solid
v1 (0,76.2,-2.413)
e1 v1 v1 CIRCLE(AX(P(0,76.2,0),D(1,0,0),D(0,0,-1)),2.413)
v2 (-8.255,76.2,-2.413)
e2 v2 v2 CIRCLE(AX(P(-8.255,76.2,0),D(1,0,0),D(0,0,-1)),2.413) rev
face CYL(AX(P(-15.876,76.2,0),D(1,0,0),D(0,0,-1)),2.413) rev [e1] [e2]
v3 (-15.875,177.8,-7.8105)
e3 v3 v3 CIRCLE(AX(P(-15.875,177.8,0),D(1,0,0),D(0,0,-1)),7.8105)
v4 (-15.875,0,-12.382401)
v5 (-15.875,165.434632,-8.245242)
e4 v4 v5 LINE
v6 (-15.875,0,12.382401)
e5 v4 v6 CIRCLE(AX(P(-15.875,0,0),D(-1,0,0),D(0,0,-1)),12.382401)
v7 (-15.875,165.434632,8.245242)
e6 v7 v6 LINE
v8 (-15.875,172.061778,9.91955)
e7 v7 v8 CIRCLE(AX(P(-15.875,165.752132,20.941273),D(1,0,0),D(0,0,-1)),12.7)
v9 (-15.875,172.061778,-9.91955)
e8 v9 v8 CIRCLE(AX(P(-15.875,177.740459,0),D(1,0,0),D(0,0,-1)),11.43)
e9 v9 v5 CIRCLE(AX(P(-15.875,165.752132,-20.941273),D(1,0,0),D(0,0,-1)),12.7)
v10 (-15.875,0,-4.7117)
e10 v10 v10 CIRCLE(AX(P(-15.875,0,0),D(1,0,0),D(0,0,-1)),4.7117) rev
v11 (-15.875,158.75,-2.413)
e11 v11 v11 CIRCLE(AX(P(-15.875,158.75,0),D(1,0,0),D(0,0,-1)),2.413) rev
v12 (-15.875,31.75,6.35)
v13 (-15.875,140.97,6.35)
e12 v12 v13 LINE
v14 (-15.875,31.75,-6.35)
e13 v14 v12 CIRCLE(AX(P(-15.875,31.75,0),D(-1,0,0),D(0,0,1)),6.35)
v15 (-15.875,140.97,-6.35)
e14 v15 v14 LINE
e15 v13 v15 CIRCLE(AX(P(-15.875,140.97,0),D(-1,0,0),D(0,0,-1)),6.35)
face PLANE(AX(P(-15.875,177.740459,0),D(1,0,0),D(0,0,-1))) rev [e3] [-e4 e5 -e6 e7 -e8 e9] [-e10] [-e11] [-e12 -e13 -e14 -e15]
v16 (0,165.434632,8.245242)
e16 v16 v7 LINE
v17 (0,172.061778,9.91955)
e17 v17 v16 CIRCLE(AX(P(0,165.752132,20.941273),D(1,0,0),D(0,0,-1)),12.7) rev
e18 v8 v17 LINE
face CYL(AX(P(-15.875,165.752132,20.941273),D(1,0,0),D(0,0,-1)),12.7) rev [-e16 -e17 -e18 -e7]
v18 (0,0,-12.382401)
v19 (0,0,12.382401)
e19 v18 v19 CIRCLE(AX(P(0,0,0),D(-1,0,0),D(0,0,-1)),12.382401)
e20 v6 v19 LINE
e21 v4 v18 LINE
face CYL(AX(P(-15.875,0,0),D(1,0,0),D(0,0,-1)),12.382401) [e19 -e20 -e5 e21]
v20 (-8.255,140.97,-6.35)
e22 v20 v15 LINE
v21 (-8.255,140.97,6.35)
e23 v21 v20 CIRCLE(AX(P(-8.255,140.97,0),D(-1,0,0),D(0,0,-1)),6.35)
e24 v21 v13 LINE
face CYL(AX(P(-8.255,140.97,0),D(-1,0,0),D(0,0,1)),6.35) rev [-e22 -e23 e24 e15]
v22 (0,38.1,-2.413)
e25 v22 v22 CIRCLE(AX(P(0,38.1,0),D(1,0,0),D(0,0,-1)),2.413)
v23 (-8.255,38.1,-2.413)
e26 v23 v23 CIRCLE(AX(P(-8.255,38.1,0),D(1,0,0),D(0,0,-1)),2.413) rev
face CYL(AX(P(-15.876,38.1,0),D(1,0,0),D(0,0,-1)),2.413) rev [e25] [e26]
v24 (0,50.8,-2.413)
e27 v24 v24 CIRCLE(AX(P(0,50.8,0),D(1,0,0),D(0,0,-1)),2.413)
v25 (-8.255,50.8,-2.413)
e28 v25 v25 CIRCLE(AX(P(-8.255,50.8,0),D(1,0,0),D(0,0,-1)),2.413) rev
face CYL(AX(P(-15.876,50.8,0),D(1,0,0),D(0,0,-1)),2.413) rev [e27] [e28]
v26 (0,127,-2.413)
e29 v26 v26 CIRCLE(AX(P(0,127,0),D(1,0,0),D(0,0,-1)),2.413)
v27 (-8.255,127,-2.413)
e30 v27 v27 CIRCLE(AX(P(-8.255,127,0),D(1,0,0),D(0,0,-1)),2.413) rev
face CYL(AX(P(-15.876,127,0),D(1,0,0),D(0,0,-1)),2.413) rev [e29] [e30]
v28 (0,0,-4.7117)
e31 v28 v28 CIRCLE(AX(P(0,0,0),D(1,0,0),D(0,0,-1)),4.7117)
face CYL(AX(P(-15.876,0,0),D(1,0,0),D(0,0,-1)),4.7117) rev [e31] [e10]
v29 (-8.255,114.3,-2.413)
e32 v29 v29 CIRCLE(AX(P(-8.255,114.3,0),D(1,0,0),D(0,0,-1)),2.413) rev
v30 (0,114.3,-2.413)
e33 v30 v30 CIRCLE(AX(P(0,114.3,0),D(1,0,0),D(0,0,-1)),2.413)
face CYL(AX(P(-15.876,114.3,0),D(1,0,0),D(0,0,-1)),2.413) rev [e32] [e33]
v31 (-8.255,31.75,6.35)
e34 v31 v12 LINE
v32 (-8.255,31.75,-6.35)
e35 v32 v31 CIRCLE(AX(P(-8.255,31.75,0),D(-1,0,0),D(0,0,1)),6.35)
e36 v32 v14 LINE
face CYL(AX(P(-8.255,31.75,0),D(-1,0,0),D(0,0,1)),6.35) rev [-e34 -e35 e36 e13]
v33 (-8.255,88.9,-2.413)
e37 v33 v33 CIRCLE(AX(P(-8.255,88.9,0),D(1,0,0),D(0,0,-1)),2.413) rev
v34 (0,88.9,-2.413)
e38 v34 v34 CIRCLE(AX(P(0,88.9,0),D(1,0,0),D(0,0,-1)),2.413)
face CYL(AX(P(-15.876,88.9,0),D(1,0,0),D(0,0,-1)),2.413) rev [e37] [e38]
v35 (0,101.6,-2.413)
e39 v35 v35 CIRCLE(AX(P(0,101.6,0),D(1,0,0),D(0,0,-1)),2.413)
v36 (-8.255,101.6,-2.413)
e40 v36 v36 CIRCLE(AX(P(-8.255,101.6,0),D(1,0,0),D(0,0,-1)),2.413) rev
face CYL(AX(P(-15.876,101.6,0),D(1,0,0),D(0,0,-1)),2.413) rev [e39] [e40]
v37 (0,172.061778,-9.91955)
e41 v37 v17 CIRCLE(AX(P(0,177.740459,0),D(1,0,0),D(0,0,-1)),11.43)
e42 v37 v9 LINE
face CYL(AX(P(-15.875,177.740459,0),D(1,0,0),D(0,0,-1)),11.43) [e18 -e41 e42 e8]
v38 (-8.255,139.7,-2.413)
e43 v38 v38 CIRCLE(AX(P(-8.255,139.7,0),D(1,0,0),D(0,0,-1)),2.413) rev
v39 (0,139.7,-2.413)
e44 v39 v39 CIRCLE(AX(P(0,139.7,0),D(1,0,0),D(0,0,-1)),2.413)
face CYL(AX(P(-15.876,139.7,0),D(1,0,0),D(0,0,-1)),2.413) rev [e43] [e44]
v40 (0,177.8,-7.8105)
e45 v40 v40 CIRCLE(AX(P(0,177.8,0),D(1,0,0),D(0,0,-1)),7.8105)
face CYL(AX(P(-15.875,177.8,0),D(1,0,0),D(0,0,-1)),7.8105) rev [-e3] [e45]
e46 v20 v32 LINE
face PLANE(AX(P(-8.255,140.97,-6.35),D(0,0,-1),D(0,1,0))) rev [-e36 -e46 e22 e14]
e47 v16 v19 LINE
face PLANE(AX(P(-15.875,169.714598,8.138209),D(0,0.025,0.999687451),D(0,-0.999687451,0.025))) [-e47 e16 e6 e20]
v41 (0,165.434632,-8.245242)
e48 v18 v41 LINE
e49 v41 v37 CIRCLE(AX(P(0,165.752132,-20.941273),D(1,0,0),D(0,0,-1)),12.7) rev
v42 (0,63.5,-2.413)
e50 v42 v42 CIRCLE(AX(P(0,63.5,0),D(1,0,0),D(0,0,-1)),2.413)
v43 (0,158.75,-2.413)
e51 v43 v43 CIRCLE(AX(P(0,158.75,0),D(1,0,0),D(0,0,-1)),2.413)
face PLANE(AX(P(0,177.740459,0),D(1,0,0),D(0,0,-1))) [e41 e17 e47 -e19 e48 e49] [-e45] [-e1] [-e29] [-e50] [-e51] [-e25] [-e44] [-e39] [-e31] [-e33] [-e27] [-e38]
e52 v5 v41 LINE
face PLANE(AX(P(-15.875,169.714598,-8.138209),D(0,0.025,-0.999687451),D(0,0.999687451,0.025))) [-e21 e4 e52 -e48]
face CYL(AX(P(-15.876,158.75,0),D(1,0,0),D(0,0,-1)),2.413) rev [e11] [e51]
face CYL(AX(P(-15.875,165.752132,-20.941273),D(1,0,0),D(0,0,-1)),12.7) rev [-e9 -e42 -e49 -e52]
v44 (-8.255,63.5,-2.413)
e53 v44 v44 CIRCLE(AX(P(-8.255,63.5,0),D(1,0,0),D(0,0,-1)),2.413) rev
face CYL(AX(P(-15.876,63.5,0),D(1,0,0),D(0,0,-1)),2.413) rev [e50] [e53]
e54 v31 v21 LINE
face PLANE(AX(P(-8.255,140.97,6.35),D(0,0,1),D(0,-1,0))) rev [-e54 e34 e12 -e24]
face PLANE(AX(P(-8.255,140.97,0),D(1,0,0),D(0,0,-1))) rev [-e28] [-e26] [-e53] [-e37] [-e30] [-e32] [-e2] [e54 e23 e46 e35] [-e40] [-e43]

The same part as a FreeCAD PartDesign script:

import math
import FreeCAD as App
import Part
import Sketcher

V = App.Vector
Q = App.Units.Quantity


def edges_at(feature, points):
    """Names of the edges that pass closest to the given points."""
    edges = feature.Shape.Edges
    near = lambda p: min(range(len(edges)), key=lambda i: edges[i].distToShape(Part.Vertex(*p))[0])
    return sorted({f"Edge{near(p) + 1}" for p in points})

doc = App.newDocument("Part")
body = doc.addObject("PartDesign::Body", "Body")

sketch1 = body.newObject("Sketcher::SketchObject", "Sketch")
sketch1.AttachmentSupport = (doc.getObject("YZ_Plane"), [""])
sketch1.MapMode = "FlatFace"
sketch1.addGeometry(Part.LineSegment(V(-12.7, 12.7, 0), V(-12.7, -12.7, 0)), False)
sketch1.addGeometry(Part.LineSegment(V(-12.7, -12.7, 0), V(169.714598, -8.138209, 0)), False)
sketch1.addGeometry(Part.ArcOfCircle(Part.Circle(V(177.740459, 0, 0), V(0, 0, 1), 11.43), math.radians(-134.601774), math.radians(134.601774)), False)
sketch1.addGeometry(Part.LineSegment(V(169.714598, 8.138209, 0), V(-12.7, 12.7, 0)), False)
sketch1.addConstraint(Sketcher.Constraint("Coincident", 0, 2, 1, 1))
sketch1.addConstraint(Sketcher.Constraint("Coincident", 1, 2, 2, 1))
sketch1.addConstraint(Sketcher.Constraint("Coincident", 2, 2, 3, 1))
sketch1.addConstraint(Sketcher.Constraint("Coincident", 3, 2, 0, 1))
sketch1.addConstraint(Sketcher.Constraint("Vertical", 0))
sketch1.addConstraint(Sketcher.Constraint("Symmetric", 1, 2, 2, 2, -1))
sketch1.addConstraint(Sketcher.Constraint("Equal", 1, 3))
sketch1.addConstraint(Sketcher.Constraint("DistanceY", 0, 2, 0, 1, Q("1 in")))
sketch1.addConstraint(Sketcher.Constraint("Radius", 2, Q("0.45 in")))
sketch1.addConstraint(Sketcher.Constraint("DistanceX", 0, 2, -1, 1, Q("0.5 in")))
sketch1.addConstraint(Sketcher.Constraint("DistanceX", -1, 1, 1, 2, Q("169.714598 mm")))
sketch1.addConstraint(Sketcher.Constraint("Distance", 1, Q("182.471629 mm")))
pad1 = body.newObject("PartDesign::Pad", "Pad")
pad1.Profile = sketch1
pad1.Length = Q("0.625 in")
pad1.Reversed = True

sketch2 = body.newObject("Sketcher::SketchObject", "Sketch001")
sketch2.AttachmentSupport = (doc.getObject("YZ_Plane"), [""])
sketch2.MapMode = "FlatFace"
sketch2.addGeometry(Part.Circle(V(50.8, 0, 0), V(0, 0, 1), 2.413), False)
sketch2.addConstraint(Sketcher.Constraint("PointOnObject", 0, 3, -1))
sketch2.addConstraint(Sketcher.Constraint("Diameter", 0, Q("0.19 in")))
sketch2.addConstraint(Sketcher.Constraint("DistanceX", -1, 1, 0, 3, Q("2 in")))
pocket1 = body.newObject("PartDesign::Pocket", "Pocket")
pocket1.Profile = sketch2
pocket1.Type = "UpToFirst"

sketch3 = body.newObject("Sketcher::SketchObject", "Sketch002")
sketch3.AttachmentSupport = (doc.getObject("YZ_Plane"), [""])
sketch3.MapMode = "FlatFace"
sketch3.addGeometry(Part.Circle(V(63.5, 0, 0), V(0, 0, 1), 2.413), False)
sketch3.addConstraint(Sketcher.Constraint("PointOnObject", 0, 3, -1))
sketch3.addConstraint(Sketcher.Constraint("Diameter", 0, Q("0.19 in")))
sketch3.addConstraint(Sketcher.Constraint("DistanceX", -1, 1, 0, 3, Q("2.5 in")))
pocket2 = body.newObject("PartDesign::Pocket", "Pocket001")
pocket2.Profile = sketch3
pocket2.Type = "UpToFirst"

sketch4 = body.newObject("Sketcher::SketchObject", "Sketch003")
sketch4.AttachmentSupport = (doc.getObject("YZ_Plane"), [""])
sketch4.MapMode = "FlatFace"
sketch4.addGeometry(Part.Circle(V(76.2, 0, 0), V(0, 0, 1), 2.413), False)
sketch4.addConstraint(Sketcher.Constraint("PointOnObject", 0, 3, -1))
sketch4.addConstraint(Sketcher.Constraint("Diameter", 0, Q("0.19 in")))
sketch4.addConstraint(Sketcher.Constraint("DistanceX", -1, 1, 0, 3, Q("3 in")))
pocket3 = body.newObject("PartDesign::Pocket", "Pocket002")
pocket3.Profile = sketch4
pocket3.Type = "UpToFirst"

sketch5 = body.newObject("Sketcher::SketchObject", "Sketch004")
sketch5.AttachmentSupport = (doc.getObject("YZ_Plane"), [""])
sketch5.MapMode = "FlatFace"
sketch5.addGeometry(Part.Circle(V(88.9, 0, 0), V(0, 0, 1), 2.413), False)
sketch5.addConstraint(Sketcher.Constraint("PointOnObject", 0, 3, -1))
sketch5.addConstraint(Sketcher.Constraint("Diameter", 0, Q("0.19 in")))
sketch5.addConstraint(Sketcher.Constraint("DistanceX", -1, 1, 0, 3, Q("3.5 in")))
pocket4 = body.newObject("PartDesign::Pocket", "Pocket003")
pocket4.Profile = sketch5
pocket4.Type = "UpToFirst"

sketch6 = body.newObject("Sketcher::SketchObject", "Sketch005")
sketch6.AttachmentSupport = (doc.getObject("YZ_Plane"), [""])
sketch6.MapMode = "FlatFace"
sketch6.addGeometry(Part.Circle(V(101.6, 0, 0), V(0, 0, 1), 2.413), False)
sketch6.addConstraint(Sketcher.Constraint("PointOnObject", 0, 3, -1))
sketch6.addConstraint(Sketcher.Constraint("Diameter", 0, Q("0.19 in")))
sketch6.addConstraint(Sketcher.Constraint("DistanceX", -1, 1, 0, 3, Q("4 in")))
pocket5 = body.newObject("PartDesign::Pocket", "Pocket004")
pocket5.Profile = sketch6
pocket5.Type = "UpToFirst"

sketch7 = body.newObject("Sketcher::SketchObject", "Sketch006")
sketch7.AttachmentSupport = (doc.getObject("YZ_Plane"), [""])
sketch7.MapMode = "FlatFace"
sketch7.addGeometry(Part.Circle(V(114.3, 0, 0), V(0, 0, 1), 2.413), False)
sketch7.addConstraint(Sketcher.Constraint("PointOnObject", 0, 3, -1))
sketch7.addConstraint(Sketcher.Constraint("Diameter", 0, Q("0.19 in")))
sketch7.addConstraint(Sketcher.Constraint("DistanceX", -1, 1, 0, 3, Q("4.5 in")))
pocket6 = body.newObject("PartDesign::Pocket", "Pocket005")
pocket6.Profile = sketch7
pocket6.Type = "UpToFirst"

sketch8 = body.newObject("Sketcher::SketchObject", "Sketch007")
sketch8.AttachmentSupport = (doc.getObject("YZ_Plane"), [""])
sketch8.MapMode = "FlatFace"
sketch8.addGeometry(Part.Circle(V(127, 0, 0), V(0, 0, 1), 2.413), False)
sketch8.addConstraint(Sketcher.Constraint("PointOnObject", 0, 3, -1))
sketch8.addConstraint(Sketcher.Constraint("Diameter", 0, Q("0.19 in")))
sketch8.addConstraint(Sketcher.Constraint("DistanceX", -1, 1, 0, 3, Q("5 in")))
pocket7 = body.newObject("PartDesign::Pocket", "Pocket006")
pocket7.Profile = sketch8
pocket7.Type = "UpToFirst"

sketch9 = body.newObject("Sketcher::SketchObject", "Sketch008")
sketch9.AttachmentSupport = (doc.getObject("YZ_Plane"), [""])
sketch9.MapMode = "FlatFace"
sketch9.addGeometry(Part.Circle(V(139.7, 0, 0), V(0, 0, 1), 2.413), False)
sketch9.addConstraint(Sketcher.Constraint("PointOnObject", 0, 3, -1))
sketch9.addConstraint(Sketcher.Constraint("Diameter", 0, Q("0.19 in")))
sketch9.addConstraint(Sketcher.Constraint("DistanceX", -1, 1, 0, 3, Q("5.5 in")))
pocket8 = body.newObject("PartDesign::Pocket", "Pocket007")
pocket8.Profile = sketch9
pocket8.Type = "UpToFirst"

sketch10 = body.newObject("Sketcher::SketchObject", "Sketch009")
sketch10.AttachmentSupport = (doc.getObject("YZ_Plane"), [""])
sketch10.MapMode = "FlatFace"
sketch10.addGeometry(Part.Circle(V(158.75, 0, 0), V(0, 0, 1), 2.413), False)
sketch10.addConstraint(Sketcher.Constraint("PointOnObject", 0, 3, -1))
sketch10.addConstraint(Sketcher.Constraint("Diameter", 0, Q("0.19 in")))
sketch10.addConstraint(Sketcher.Constraint("DistanceX", -1, 1, 0, 3, Q("6.25 in")))
pocket9 = body.newObject("PartDesign::Pocket", "Pocket008")
pocket9.Profile = sketch10
pocket9.Type = "UpToFirst"

sketch11 = body.newObject("Sketcher::SketchObject", "Sketch010")
sketch11.AttachmentSupport = (doc.getObject("YZ_Plane"), [""])
sketch11.MapMode = "FlatFace"
sketch11.addGeometry(Part.Circle(V(38.1, 0, 0), V(0, 0, 1), 2.413), False)
sketch11.addConstraint(Sketcher.Constraint("PointOnObject", 0, 3, -1))
sketch11.addConstraint(Sketcher.Constraint("Diameter", 0, Q("0.19 in")))
sketch11.addConstraint(Sketcher.Constraint("DistanceX", -1, 1, 0, 3, Q("1.5 in")))
pocket10 = body.newObject("PartDesign::Pocket", "Pocket009")
pocket10.Profile = sketch11
pocket10.Type = "UpToFirst"

sketch12 = body.newObject("Sketcher::SketchObject", "Sketch011")
sketch12.AttachmentSupport = (doc.getObject("YZ_Plane"), [""])
sketch12.MapMode = "FlatFace"
sketch12.addGeometry(Part.Circle(V(0, 0, 0), V(0, 0, 1), 4.7117), False)
sketch12.addConstraint(Sketcher.Constraint("Coincident", 0, 3, -1, 1))
sketch12.addConstraint(Sketcher.Constraint("Diameter", 0, Q("0.371 in")))
pocket11 = body.newObject("PartDesign::Pocket", "Pocket010")
pocket11.Profile = sketch12
pocket11.Type = "UpToFirst"

sketch13 = body.newObject("Sketcher::SketchObject", "Sketch012")
sketch13.AttachmentSupport = (doc.getObject("YZ_Plane"), [""])
sketch13.MapMode = "FlatFace"
sketch13.addGeometry(Part.LineSegment(V(0, 12.382401, 0), V(-12.7, 12.7, 0)), False)
sketch13.addGeometry(Part.LineSegment(V(-12.7, 12.7, 0), V(-12.7, -12.7, 0)), False)
sketch13.addGeometry(Part.LineSegment(V(-12.7, -12.7, 0), V(0, -12.382401, 0)), False)
sketch13.addGeometry(Part.ArcOfCircle(Part.Circle(V(0, 0, 0), V(0, 0, 1), 12.382401), math.radians(90), math.radians(270)), False)
sketch13.addConstraint(Sketcher.Constraint("Coincident", 0, 2, 1, 1))
sketch13.addConstraint(Sketcher.Constraint("Coincident", 1, 2, 2, 1))
sketch13.addConstraint(Sketcher.Constraint("Coincident", 2, 2, 3, 2))
sketch13.addConstraint(Sketcher.Constraint("Coincident", 3, 1, 0, 1))
sketch13.addConstraint(Sketcher.Constraint("Vertical", 1))
sketch13.addConstraint(Sketcher.Constraint("Coincident", 3, 3, -1, 1))
sketch13.addConstraint(Sketcher.Constraint("PointOnObject", 2, 2, -2))
sketch13.addConstraint(Sketcher.Constraint("PointOnObject", 3, 1, -2))
sketch13.addConstraint(Sketcher.Constraint("Equal", 0, 2))
sketch13.addConstraint(Sketcher.Constraint("DistanceY", 1, 2, 1, 1, Q("1 in")))
sketch13.addConstraint(Sketcher.Constraint("DistanceX", 0, 2, -1, 1, Q("0.5 in")))
sketch13.addConstraint(Sketcher.Constraint("Radius", 3, Q("12.382401 mm")))
pocket12 = body.newObject("PartDesign::Pocket", "Pocket011")
pocket12.Profile = sketch13
pocket12.Type = "ThroughAll"

sketch14 = body.newObject("Sketcher::SketchObject", "Sketch013")
sketch14.AttachmentSupport = (doc.getObject("YZ_Plane"), [""])
sketch14.MapMode = "FlatFace"
sketch14.AttachmentOffset = App.Placement(V(0, 0, -0.625 * 25.4), App.Rotation())
sketch14.addGeometry(Part.LineSegment(V(140.97, -6.35, 0), V(31.75, -6.35, 0)), False)
sketch14.addGeometry(Part.ArcOfCircle(Part.Circle(V(31.75, 0, 0), V(0, 0, 1), 6.35), math.radians(90), math.radians(270)), False)
sketch14.addGeometry(Part.LineSegment(V(31.75, 6.35, 0), V(140.97, 6.35, 0)), False)
sketch14.addGeometry(Part.ArcOfCircle(Part.Circle(V(140.97, 0, 0), V(0, 0, 1), 6.35), math.radians(-90), math.radians(90)), False)
sketch14.addConstraint(Sketcher.Constraint("Tangent", 0, 2, 1, 2))
sketch14.addConstraint(Sketcher.Constraint("Tangent", 1, 1, 2, 1))
sketch14.addConstraint(Sketcher.Constraint("Tangent", 2, 2, 3, 2))
sketch14.addConstraint(Sketcher.Constraint("Tangent", 3, 1, 0, 1))
sketch14.addConstraint(Sketcher.Constraint("Horizontal", 0))
sketch14.addConstraint(Sketcher.Constraint("Horizontal", 2))
sketch14.addConstraint(Sketcher.Constraint("PointOnObject", 1, 3, -1))
sketch14.addConstraint(Sketcher.Constraint("Radius", 1, Q("0.25 in")))
sketch14.addConstraint(Sketcher.Constraint("DistanceX", 0, 2, 0, 1, Q("4.3 in")))
sketch14.addConstraint(Sketcher.Constraint("DistanceX", -1, 1, 1, 3, Q("1.25 in")))
pocket13 = body.newObject("PartDesign::Pocket", "Pocket012")
pocket13.Profile = sketch14
pocket13.Length = Q("0.3 in")
pocket13.Reversed = True

sketch15 = body.newObject("Sketcher::SketchObject", "Sketch014")
sketch15.AttachmentSupport = (doc.getObject("YZ_Plane"), [""])
sketch15.MapMode = "FlatFace"
sketch15.addGeometry(Part.Circle(V(177.8, 0, 0), V(0, 0, 1), 7.8105), False)
sketch15.addConstraint(Sketcher.Constraint("PointOnObject", 0, 3, -1))
sketch15.addConstraint(Sketcher.Constraint("Diameter", 0, Q("0.615 in")))
sketch15.addConstraint(Sketcher.Constraint("DistanceX", -1, 1, 0, 3, Q("7 in")))
pocket14 = body.newObject("PartDesign::Pocket", "Pocket013")
pocket14.Profile = sketch15
pocket14.Type = "ThroughAll"
doc.recompute()

fillet = body.newObject("PartDesign::Fillet", "Fillet")
fillet.Base = (pocket14, edges_at(pocket14, [(-7.938, 169.715, 8.138), (-7.938, 169.715, -8.138)]))
fillet.Radius = Q("0.5 in")

doc.recompute()
